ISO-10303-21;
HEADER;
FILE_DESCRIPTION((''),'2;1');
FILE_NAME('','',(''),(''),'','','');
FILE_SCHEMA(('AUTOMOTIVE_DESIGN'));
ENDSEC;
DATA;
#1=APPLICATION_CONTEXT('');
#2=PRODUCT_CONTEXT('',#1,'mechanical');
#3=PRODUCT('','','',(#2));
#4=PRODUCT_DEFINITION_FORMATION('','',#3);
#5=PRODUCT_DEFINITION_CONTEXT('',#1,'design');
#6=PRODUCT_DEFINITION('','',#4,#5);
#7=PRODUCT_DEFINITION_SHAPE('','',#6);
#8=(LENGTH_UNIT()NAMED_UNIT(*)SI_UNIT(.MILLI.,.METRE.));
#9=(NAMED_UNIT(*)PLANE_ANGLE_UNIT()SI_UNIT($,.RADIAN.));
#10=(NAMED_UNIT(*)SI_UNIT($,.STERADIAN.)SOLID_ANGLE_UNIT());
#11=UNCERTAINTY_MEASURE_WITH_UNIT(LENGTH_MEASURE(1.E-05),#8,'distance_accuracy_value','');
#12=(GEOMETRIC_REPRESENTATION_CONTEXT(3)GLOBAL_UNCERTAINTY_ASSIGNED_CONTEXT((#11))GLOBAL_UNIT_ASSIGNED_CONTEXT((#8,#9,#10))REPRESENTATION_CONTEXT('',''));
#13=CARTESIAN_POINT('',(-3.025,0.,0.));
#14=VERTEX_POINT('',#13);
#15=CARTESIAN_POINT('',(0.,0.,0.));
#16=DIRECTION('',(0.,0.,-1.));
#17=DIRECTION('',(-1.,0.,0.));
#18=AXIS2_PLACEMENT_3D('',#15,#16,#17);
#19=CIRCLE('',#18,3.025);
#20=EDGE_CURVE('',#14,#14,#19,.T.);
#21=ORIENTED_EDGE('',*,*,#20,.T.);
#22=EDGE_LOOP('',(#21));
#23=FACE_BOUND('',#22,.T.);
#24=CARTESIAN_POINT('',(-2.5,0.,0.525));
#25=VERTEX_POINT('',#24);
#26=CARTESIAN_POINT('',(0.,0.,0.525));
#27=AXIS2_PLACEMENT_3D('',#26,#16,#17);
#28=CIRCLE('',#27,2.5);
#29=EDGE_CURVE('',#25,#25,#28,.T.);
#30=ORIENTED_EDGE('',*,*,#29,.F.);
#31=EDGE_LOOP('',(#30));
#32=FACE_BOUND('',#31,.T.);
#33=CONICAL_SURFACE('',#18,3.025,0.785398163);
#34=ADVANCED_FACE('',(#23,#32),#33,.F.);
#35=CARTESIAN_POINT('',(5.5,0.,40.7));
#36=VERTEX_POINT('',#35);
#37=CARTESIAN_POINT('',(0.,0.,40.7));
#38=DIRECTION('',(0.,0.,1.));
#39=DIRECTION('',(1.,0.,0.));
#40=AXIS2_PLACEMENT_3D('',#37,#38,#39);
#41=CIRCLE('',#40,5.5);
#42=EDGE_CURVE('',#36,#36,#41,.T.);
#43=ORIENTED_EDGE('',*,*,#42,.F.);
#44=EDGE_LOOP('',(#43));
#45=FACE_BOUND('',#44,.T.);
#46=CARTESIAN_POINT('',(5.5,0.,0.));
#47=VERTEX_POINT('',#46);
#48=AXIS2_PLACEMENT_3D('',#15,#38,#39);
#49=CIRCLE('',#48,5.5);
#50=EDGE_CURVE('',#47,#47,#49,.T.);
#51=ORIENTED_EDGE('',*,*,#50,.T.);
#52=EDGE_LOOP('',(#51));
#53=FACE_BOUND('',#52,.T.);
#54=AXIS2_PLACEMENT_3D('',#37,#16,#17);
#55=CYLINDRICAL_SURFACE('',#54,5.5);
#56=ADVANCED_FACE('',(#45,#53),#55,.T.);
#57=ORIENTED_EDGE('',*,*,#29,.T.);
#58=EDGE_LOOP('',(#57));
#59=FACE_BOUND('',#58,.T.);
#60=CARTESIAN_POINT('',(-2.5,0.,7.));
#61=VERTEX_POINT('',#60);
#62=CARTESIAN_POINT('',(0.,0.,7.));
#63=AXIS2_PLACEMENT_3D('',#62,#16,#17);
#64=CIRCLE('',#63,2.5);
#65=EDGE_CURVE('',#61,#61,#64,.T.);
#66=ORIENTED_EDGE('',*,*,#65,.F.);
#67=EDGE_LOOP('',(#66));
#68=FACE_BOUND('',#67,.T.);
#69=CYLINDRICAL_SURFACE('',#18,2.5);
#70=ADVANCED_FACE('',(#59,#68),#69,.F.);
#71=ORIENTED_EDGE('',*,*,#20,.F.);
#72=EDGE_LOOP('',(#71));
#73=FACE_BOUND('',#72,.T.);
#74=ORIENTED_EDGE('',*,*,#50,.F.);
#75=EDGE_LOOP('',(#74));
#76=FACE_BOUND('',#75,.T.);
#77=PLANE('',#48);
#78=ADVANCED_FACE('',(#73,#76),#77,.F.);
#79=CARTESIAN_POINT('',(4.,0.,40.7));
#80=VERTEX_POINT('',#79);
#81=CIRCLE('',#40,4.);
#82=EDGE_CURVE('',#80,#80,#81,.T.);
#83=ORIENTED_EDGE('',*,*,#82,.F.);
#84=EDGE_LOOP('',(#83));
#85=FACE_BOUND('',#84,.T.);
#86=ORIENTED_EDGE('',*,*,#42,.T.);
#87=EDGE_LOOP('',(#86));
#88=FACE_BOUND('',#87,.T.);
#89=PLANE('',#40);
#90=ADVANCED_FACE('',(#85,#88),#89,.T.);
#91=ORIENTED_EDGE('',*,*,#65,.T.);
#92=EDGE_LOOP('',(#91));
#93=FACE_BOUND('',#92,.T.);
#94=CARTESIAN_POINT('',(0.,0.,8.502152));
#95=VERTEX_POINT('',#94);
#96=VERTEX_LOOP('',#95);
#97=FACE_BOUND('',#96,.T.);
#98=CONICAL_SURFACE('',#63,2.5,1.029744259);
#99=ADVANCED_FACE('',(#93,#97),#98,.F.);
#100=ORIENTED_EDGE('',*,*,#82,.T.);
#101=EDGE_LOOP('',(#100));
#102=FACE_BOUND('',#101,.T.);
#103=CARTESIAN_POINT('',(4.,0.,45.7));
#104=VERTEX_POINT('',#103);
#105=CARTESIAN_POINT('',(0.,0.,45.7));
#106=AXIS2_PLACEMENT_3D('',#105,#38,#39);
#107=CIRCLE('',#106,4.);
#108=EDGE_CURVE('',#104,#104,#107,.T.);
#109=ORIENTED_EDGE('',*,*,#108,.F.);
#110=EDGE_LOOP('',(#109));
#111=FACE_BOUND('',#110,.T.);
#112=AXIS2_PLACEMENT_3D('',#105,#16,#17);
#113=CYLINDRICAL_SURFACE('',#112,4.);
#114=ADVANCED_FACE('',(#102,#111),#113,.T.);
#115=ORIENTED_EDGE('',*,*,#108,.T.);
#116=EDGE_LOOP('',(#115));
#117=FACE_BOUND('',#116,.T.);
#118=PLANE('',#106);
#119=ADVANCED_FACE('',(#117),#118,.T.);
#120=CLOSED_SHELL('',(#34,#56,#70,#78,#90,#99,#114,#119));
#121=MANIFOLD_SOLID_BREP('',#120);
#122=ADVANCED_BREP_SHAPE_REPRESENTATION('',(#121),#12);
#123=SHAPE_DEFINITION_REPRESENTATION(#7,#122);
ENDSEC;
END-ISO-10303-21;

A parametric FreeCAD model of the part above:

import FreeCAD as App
import Part
import Sketcher
from FreeCAD import Vector
Q = App.Units.Quantity

doc = App.newDocument("Part")
body = doc.addObject("PartDesign::Body", "Body")

# Sketch on XY plane
sketch1 = body.newObject("Sketcher::SketchObject", "Sketch")
sketch1.AttachmentSupport = (doc.getObject("XY_Plane"), [""])
sketch1.MapMode = "FlatFace"
sketch1.addGeometry(Part.Circle(Vector(0, 0, 0), Vector(0, 0, 1), 6), False)
sketch1.addConstraint([
    Sketcher.Constraint("Coincident", 0, 3, -1, 1),
    Sketcher.Constraint("Diameter", 0, Q("11 mm")),
])
pad1 = body.newObject("PartDesign::Pad", "Pad")
pad1.Profile = sketch1
pad1.Length = 40.7

# Sketch on XY plane
sketch2 = body.newObject("Sketcher::SketchObject", "Sketch001")
sketch2.AttachmentSupport = (doc.getObject("XY_Plane"), [""])
sketch2.MapMode = "FlatFace"
sketch2.AttachmentOffset = App.Placement(Vector(0, 0, 40.7), App.Rotation())
sketch2.addGeometry(Part.Circle(Vector(0, 0, 0), Vector(0, 0, 1), 4), False)
sketch2.addConstraint([
    Sketcher.Constraint("Coincident", 0, 3, -1, 1),
    Sketcher.Constraint("Diameter", 0, Q("8 mm")),
])
pad2 = body.newObject("PartDesign::Pad", "Pad001")
pad2.Profile = sketch2
pad2.Length = 5

# Sketch on XY plane
sketch3 = body.newObject("Sketcher::SketchObject", "Sketch002")
sketch3.AttachmentSupport = (doc.getObject("XY_Plane"), [""])
sketch3.MapMode = "FlatFace"
sketch3.addGeometry(Part.Circle(Vector(0, 0, 0), Vector(0, 0, 1), 2.5), False)
sketch3.addConstraint([
    Sketcher.Constraint("Coincident", 0, 3, -1, 1),
    Sketcher.Constraint("Diameter", 0, Q("5 mm")),
])
doc.recompute()
hole = body.newObject("PartDesign::Hole", "Hole")
hole.Profile = sketch3
hole.ThreadType = "None"
hole.Diameter = 5
hole.DepthType = "Dimension"
hole.Depth = 7
hole.DrillPoint = "Angled"
hole.DrillPointAngle = 118
hole.HoleCutType = "Countersink"
hole.HoleCutDiameter = 6.05
hole.HoleCutCountersinkAngle = 90
hole.Reversed = True

doc.recompute()
